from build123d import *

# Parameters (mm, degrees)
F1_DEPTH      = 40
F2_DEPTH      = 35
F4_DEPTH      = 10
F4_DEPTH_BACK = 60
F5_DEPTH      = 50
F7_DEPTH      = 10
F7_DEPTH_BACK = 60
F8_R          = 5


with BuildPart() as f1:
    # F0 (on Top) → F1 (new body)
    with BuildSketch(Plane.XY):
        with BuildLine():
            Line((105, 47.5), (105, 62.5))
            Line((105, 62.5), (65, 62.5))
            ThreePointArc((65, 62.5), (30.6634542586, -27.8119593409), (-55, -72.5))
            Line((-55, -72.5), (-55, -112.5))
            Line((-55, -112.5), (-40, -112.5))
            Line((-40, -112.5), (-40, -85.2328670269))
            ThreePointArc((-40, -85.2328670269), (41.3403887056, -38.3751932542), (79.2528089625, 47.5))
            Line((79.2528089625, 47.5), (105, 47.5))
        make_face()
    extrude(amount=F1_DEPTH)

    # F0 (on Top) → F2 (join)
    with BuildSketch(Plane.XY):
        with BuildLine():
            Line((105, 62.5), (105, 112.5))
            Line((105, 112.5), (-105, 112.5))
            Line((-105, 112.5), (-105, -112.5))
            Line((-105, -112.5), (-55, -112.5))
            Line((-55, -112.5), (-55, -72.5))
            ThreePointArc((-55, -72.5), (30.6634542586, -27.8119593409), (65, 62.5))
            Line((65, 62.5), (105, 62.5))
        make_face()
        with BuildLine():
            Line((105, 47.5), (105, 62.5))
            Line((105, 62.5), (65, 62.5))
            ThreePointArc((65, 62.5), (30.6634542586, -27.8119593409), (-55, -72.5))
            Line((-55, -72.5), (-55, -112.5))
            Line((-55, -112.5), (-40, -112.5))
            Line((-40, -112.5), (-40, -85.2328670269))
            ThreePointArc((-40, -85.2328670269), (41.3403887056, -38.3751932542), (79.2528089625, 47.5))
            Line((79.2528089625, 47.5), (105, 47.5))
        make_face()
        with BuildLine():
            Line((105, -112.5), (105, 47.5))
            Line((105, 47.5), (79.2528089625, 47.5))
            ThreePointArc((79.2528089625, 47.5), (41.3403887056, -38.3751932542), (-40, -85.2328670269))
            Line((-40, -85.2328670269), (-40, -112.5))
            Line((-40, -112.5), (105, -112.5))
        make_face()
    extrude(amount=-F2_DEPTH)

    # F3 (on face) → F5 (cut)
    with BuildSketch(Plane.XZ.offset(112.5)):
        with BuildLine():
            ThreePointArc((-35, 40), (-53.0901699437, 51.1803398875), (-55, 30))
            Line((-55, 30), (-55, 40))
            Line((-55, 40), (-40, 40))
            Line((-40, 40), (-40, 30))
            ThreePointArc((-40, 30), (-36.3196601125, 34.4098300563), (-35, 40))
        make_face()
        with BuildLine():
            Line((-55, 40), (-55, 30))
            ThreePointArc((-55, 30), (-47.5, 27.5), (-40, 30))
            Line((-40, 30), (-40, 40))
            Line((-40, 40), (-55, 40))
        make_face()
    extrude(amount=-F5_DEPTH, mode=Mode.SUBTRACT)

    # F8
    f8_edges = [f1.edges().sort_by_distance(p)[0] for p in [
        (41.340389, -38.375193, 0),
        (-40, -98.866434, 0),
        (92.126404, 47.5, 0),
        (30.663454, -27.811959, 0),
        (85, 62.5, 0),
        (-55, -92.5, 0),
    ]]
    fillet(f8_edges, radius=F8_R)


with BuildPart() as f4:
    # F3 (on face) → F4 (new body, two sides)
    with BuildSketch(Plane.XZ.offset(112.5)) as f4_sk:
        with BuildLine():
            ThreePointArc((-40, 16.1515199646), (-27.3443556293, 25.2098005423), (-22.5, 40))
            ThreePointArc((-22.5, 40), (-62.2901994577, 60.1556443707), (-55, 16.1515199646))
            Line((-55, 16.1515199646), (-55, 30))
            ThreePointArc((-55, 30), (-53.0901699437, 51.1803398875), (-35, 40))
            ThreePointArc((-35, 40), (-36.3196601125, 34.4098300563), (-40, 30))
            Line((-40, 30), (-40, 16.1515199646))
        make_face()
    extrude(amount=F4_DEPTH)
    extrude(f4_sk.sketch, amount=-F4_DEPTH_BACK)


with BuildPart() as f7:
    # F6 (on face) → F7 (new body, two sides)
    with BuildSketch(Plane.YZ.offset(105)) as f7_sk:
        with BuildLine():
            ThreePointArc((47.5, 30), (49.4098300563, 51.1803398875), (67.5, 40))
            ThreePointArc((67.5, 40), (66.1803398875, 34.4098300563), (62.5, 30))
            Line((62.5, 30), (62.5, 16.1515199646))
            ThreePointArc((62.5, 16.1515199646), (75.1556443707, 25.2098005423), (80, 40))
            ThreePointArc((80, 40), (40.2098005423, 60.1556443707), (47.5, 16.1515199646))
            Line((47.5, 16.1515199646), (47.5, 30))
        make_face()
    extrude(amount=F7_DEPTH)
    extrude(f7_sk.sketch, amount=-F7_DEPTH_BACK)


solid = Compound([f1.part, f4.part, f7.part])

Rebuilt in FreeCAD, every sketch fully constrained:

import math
import FreeCAD as App
import Part
import Sketcher


def edges_at(feature, points):
    """Names of the edges that pass closest to the given points."""
    edges = feature.Shape.Edges
    near = lambda p: min(range(len(edges)), key=lambda i: edges[i].distToShape(Part.Vertex(*p))[0])
    return sorted({f"Edge{near(p) + 1}" for p in points})


def add_polygon(sketch, points):
    """Adds a closed chain of lines whose ends are joined by coincident constraints."""
    first, n = sketch.GeometryCount, len(points)
    for a, b in zip(points, points[1:] + points[:1]):
        sketch.addGeometry(Part.LineSegment(App.Vector(*a, 0), App.Vector(*b, 0)), False)
    for i in range(n):
        sketch.addConstraint(Sketcher.Constraint("Coincident", first + i, 2, first + (i + 1) % n, 1))

doc = App.newDocument("Part")
body = doc.addObject("PartDesign::Body", "Body")

# Sketch on XY plane
sketch1 = body.newObject("Sketcher::SketchObject", "Sketch")
sketch1.AttachmentSupport = (doc.getObject("XY_Plane"), [""])
sketch1.MapMode = "FlatFace"
sketch1.addGeometry([
    Part.LineSegment(App.Vector(105, 47.5, 0), App.Vector(105, 62.5, 0)),  # 0
    Part.LineSegment(App.Vector(105, 62.5, 0), App.Vector(65, 62.5, 0)),  # 1
    Part.ArcOfCircle(Part.Circle(App.Vector(-70.9375, 62.5, 0), App.Vector(0, 0, 1), 135.9375), math.radians(-83.267079), math.radians(0)),  # 2
    Part.LineSegment(App.Vector(-55, -72.5, 0), App.Vector(-55, -112.5, 0)),  # 3
    Part.LineSegment(App.Vector(-55, -112.5, 0), App.Vector(-40, -112.5, 0)),  # 4
    Part.LineSegment(App.Vector(-40, -112.5, 0), App.Vector(-40, -85.232867, 0)),  # 5
    Part.ArcOfCircle(Part.Circle(App.Vector(-70.9375, 62.5, 0), App.Vector(0, 0, 1), 150.9375), math.radians(-78.172319), math.radians(-5.703405)),  # 6
    Part.LineSegment(App.Vector(79.252809, 47.5, 0), App.Vector(105, 47.5, 0)),  # 7
], False)
sketch1.addConstraint([
    Sketcher.Constraint("Coincident", 0, 2, 1, 1),
    Sketcher.Constraint("Coincident", 1, 2, 2, 2),
    Sketcher.Constraint("Coincident", 2, 1, 3, 1),
    Sketcher.Constraint("Coincident", 3, 2, 4, 1),
    Sketcher.Constraint("Coincident", 4, 2, 5, 1),
    Sketcher.Constraint("Coincident", 5, 2, 6, 1),
    Sketcher.Constraint("Coincident", 6, 2, 7, 1),
    Sketcher.Constraint("Coincident", 7, 2, 0, 1),
    Sketcher.Constraint("Vertical", 0),
    Sketcher.Constraint("Horizontal", 1),
    Sketcher.Constraint("Vertical", 3),
    Sketcher.Constraint("Horizontal", 4),
    Sketcher.Constraint("Vertical", 5),
    Sketcher.Constraint("Horizontal", 7),
    Sketcher.Constraint("Coincident", 6, 3, 2, 3),
    Sketcher.Constraint("Horizontal", 6, 3, 0, 2),
    Sketcher.Constraint("Equal", 4, 0),
    Sketcher.Constraint("Equal", 1, 3),
    Sketcher.Constraint("DistanceX", 1, 2, 1, 1, 40.0),
    Sketcher.Constraint("DistanceX", 4, 1, 4, 2, 15.0),
    Sketcher.Constraint("DistanceX", -1, 1, 0, 2, 105.0),
    Sketcher.Constraint("DistanceX", 2, 1, -1, 1, 55.0),
    Sketcher.Constraint("DistanceY", 2, 1, 2, 3, 135.0),
    Sketcher.Constraint("DistanceY", -1, 1, 2, 3, 62.5),
    Sketcher.Constraint("Radius", 6, 150.9375),
])
pad1 = body.newObject("PartDesign::Pad", "Pad")
pad1.Profile = sketch1
pad1.Length = 40

# Sketch on XY plane
sketch2 = body.newObject("Sketcher::SketchObject", "Sketch001")
sketch2.AttachmentSupport = (doc.getObject("XY_Plane"), [""])
sketch2.MapMode = "FlatFace"
add_polygon(sketch2, [(105, 112.5), (-105, 112.5), (-105, -112.5), (105, -112.5)])  # lines 0-3
sketch2.addConstraint([
    Sketcher.Constraint("Horizontal", 0),
    Sketcher.Constraint("Vertical", 1),
    Sketcher.Constraint("Horizontal", 2),
    Sketcher.Constraint("Vertical", 3),
    Sketcher.Constraint("Symmetric", 0, 2, 2, 2, -1, 1),
    Sketcher.Constraint("DistanceX", 0, 2, 0, 1, 210.0),
    Sketcher.Constraint("DistanceY", 1, 2, 1, 1, 225.0),
])
pad2 = body.newObject("PartDesign::Pad", "Pad001")
pad2.Profile = sketch2
pad2.Length = 35
pad2.Reversed = True

# Sketch on XZ plane
sketch3 = body.newObject("Sketcher::SketchObject", "Sketch002")
sketch3.AttachmentSupport = (doc.getObject("XZ_Plane"), [""])
sketch3.MapMode = "FlatFace"
sketch3.AttachmentOffset = App.Placement(App.Vector(0, 0, 112.5), App.Rotation())
sketch3.addGeometry([
    Part.ArcOfCircle(Part.Circle(App.Vector(-47.5, 40, 0), App.Vector(0, 0, 1), 12.5), math.radians(0), math.radians(233.130102)),
    Part.ArcOfCircle(Part.Circle(App.Vector(-47.5, 40, 0), App.Vector(0, 0, 1), 12.5), math.radians(-126.869898), math.radians(-53.130102)),
    Part.ArcOfCircle(Part.Circle(App.Vector(-47.5, 40, 0), App.Vector(0, 0, 1), 12.5), math.radians(-53.130102), math.radians(0)),
], False)
sketch3.addConstraint([
    Sketcher.Constraint("Tangent", 0, 2, 1, 1),
    Sketcher.Constraint("Tangent", 1, 2, 2, 1),
    Sketcher.Constraint("Tangent", 2, 2, 0, 1),
    Sketcher.Constraint("Horizontal", 0, 2, 1, 2),
    Sketcher.Constraint("Horizontal", 1, 3, 2, 2),
    Sketcher.Constraint("Radius", 0, 12.5),
    Sketcher.Constraint("DistanceY", -1, 1, 0, 3, 40.0),
    Sketcher.Constraint("DistanceX", 0, 2, -1, 1, 55.0),
    Sketcher.Constraint("DistanceY", -1, 1, 0, 2, 30.0),
])
pocket1 = body.newObject("PartDesign::Pocket", "Pocket")
pocket1.Profile = sketch3
pocket1.Length = 50
doc.recompute()

fillet = body.newObject("PartDesign::Fillet", "Fillet")
fillet.Base = (pocket1, edges_at(pocket1, [
    (41.34, -38.375, 0),
    (-40, -98.866, 0),
    (92.126, 47.5, 0),
    (30.663, -27.812, 0),
    (85, 62.5, 0),
    (-55, -92.5, 0),
]))
fillet.Radius = 5
body2 = doc.addObject("PartDesign::Body", "Body001")

# Sketch on XZ plane
sketch4 = body2.newObject("Sketcher::SketchObject", "Sketch003")
sketch4.AttachmentSupport = (doc.getObject("XZ_Plane001"), [""])
sketch4.MapMode = "FlatFace"
sketch4.AttachmentOffset = App.Placement(App.Vector(0, 0, 112.5), App.Rotation())
sketch4.addGeometry([
    Part.ArcOfCircle(Part.Circle(App.Vector(-47.5, 40, 0), App.Vector(0, 0, 1), 25), math.radians(-72.542397), math.radians(0)),  # 0
    Part.ArcOfCircle(Part.Circle(App.Vector(-47.5, 40, 0), App.Vector(0, 0, 1), 25), math.radians(0), math.radians(252.542397)),  # 1
    Part.LineSegment(App.Vector(-55, 16.15152, 0), App.Vector(-55, 30, 0)),  # 2
    Part.ArcOfCircle(Part.Circle(App.Vector(-47.5, 40, 0), App.Vector(0, 0, 1), 12.5), math.radians(0), math.radians(233.130102)),  # 3
    Part.ArcOfCircle(Part.Circle(App.Vector(-47.5, 40, 0), App.Vector(0, 0, 1), 12.5), math.radians(-53.130102), math.radians(0)),  # 4
    Part.LineSegment(App.Vector(-40, 30, 0), App.Vector(-40, 16.15152, 0)),  # 5
], False)
sketch4.addConstraint([
    Sketcher.Constraint("Tangent", 0, 2, 1, 1),
    Sketcher.Constraint("Coincident", 1, 2, 2, 1),
    Sketcher.Constraint("Coincident", 2, 2, 3, 2),
    Sketcher.Constraint("Tangent", 3, 1, 4, 2),
    Sketcher.Constraint("Coincident", 4, 1, 5, 1),
    Sketcher.Constraint("Coincident", 5, 2, 0, 1),
    Sketcher.Constraint("Vertical", 2),
    Sketcher.Constraint("Vertical", 5),
    Sketcher.Constraint("Coincident", 3, 3, 0, 3),
    Sketcher.Constraint("Equal", 0, 1),
    Sketcher.Constraint("Equal", 3, 4),
    Sketcher.Constraint("Horizontal", 4, 3, 0, 2),
    Sketcher.Constraint("Horizontal", 0, 2, 3, 1),
    Sketcher.Constraint("Horizontal", 2, 2, 4, 1),
    Sketcher.Constraint("Radius", 0, 25.0),
    Sketcher.Constraint("Radius", 3, 12.5),
    Sketcher.Constraint("DistanceY", -1, 1, 0, 3, 40.0),
    Sketcher.Constraint("DistanceX", 1, 2, -1, 1, 55.0),
    Sketcher.Constraint("DistanceY", -1, 1, 2, 2, 30.0),
])
pad3 = body2.newObject("PartDesign::Pad", "Pad002")
pad3.Profile = sketch4
pad3.Type = "TwoLengths"
pad3.Length = 10
pad3.Length2 = 60
body3 = doc.addObject("PartDesign::Body", "Body002")

# Sketch on YZ plane
sketch5 = body3.newObject("Sketcher::SketchObject", "Sketch004")
sketch5.AttachmentSupport = (doc.getObject("YZ_Plane002"), [""])
sketch5.MapMode = "FlatFace"
sketch5.AttachmentOffset = App.Placement(App.Vector(0, 0, 105), App.Rotation())
sketch5.addGeometry([
    Part.ArcOfCircle(Part.Circle(App.Vector(55, 40, 0), App.Vector(0, 0, 1), 12.5), math.radians(0), math.radians(233.130102)),  # 0
    Part.ArcOfCircle(Part.Circle(App.Vector(55, 40, 0), App.Vector(0, 0, 1), 12.5), math.radians(-53.130102), math.radians(0)),  # 1
    Part.LineSegment(App.Vector(62.5, 30, 0), App.Vector(62.5, 16.15152, 0)),  # 2
    Part.ArcOfCircle(Part.Circle(App.Vector(55, 40, 0), App.Vector(0, 0, 1), 25), math.radians(-72.542397), math.radians(0)),  # 3
    Part.ArcOfCircle(Part.Circle(App.Vector(55, 40, 0), App.Vector(0, 0, 1), 25), math.radians(0), math.radians(252.542397)),  # 4
    Part.LineSegment(App.Vector(47.5, 16.15152, 0), App.Vector(47.5, 30, 0)),  # 5
], False)
sketch5.addConstraint([
    Sketcher.Constraint("Tangent", 0, 1, 1, 2),
    Sketcher.Constraint("Coincident", 1, 1, 2, 1),
    Sketcher.Constraint("Coincident", 2, 2, 3, 1),
    Sketcher.Constraint("Tangent", 3, 2, 4, 1),
    Sketcher.Constraint("Coincident", 4, 2, 5, 1),
    Sketcher.Constraint("Coincident", 5, 2, 0, 2),
    Sketcher.Constraint("Vertical", 2),
    Sketcher.Constraint("Vertical", 5),
    Sketcher.Constraint("Coincident", 3, 3, 0, 3),
    Sketcher.Constraint("Equal", 0, 1),
    Sketcher.Constraint("Equal", 3, 4),
    Sketcher.Constraint("Horizontal", 4, 3, 0, 1),
    Sketcher.Constraint("Horizontal", 0, 1, 3, 2),
    Sketcher.Constraint("Horizontal", 2, 2, 4, 2),
    Sketcher.Constraint("Radius", 3, 25.0),
    Sketcher.Constraint("Radius", 0, 12.5),
    Sketcher.Constraint("DistanceX", -1, 1, 0, 3, 55.0),
    Sketcher.Constraint("DistanceY", -1, 1, 0, 3, 40.0),
    Sketcher.Constraint("DistanceY", -1, 1, 1, 1, 30.0),
])
pad4 = body3.newObject("PartDesign::Pad", "Pad003")
pad4.Profile = sketch5
pad4.Type = "TwoLengths"
pad4.Length = 10
pad4.Length2 = 60

doc.recompute()
